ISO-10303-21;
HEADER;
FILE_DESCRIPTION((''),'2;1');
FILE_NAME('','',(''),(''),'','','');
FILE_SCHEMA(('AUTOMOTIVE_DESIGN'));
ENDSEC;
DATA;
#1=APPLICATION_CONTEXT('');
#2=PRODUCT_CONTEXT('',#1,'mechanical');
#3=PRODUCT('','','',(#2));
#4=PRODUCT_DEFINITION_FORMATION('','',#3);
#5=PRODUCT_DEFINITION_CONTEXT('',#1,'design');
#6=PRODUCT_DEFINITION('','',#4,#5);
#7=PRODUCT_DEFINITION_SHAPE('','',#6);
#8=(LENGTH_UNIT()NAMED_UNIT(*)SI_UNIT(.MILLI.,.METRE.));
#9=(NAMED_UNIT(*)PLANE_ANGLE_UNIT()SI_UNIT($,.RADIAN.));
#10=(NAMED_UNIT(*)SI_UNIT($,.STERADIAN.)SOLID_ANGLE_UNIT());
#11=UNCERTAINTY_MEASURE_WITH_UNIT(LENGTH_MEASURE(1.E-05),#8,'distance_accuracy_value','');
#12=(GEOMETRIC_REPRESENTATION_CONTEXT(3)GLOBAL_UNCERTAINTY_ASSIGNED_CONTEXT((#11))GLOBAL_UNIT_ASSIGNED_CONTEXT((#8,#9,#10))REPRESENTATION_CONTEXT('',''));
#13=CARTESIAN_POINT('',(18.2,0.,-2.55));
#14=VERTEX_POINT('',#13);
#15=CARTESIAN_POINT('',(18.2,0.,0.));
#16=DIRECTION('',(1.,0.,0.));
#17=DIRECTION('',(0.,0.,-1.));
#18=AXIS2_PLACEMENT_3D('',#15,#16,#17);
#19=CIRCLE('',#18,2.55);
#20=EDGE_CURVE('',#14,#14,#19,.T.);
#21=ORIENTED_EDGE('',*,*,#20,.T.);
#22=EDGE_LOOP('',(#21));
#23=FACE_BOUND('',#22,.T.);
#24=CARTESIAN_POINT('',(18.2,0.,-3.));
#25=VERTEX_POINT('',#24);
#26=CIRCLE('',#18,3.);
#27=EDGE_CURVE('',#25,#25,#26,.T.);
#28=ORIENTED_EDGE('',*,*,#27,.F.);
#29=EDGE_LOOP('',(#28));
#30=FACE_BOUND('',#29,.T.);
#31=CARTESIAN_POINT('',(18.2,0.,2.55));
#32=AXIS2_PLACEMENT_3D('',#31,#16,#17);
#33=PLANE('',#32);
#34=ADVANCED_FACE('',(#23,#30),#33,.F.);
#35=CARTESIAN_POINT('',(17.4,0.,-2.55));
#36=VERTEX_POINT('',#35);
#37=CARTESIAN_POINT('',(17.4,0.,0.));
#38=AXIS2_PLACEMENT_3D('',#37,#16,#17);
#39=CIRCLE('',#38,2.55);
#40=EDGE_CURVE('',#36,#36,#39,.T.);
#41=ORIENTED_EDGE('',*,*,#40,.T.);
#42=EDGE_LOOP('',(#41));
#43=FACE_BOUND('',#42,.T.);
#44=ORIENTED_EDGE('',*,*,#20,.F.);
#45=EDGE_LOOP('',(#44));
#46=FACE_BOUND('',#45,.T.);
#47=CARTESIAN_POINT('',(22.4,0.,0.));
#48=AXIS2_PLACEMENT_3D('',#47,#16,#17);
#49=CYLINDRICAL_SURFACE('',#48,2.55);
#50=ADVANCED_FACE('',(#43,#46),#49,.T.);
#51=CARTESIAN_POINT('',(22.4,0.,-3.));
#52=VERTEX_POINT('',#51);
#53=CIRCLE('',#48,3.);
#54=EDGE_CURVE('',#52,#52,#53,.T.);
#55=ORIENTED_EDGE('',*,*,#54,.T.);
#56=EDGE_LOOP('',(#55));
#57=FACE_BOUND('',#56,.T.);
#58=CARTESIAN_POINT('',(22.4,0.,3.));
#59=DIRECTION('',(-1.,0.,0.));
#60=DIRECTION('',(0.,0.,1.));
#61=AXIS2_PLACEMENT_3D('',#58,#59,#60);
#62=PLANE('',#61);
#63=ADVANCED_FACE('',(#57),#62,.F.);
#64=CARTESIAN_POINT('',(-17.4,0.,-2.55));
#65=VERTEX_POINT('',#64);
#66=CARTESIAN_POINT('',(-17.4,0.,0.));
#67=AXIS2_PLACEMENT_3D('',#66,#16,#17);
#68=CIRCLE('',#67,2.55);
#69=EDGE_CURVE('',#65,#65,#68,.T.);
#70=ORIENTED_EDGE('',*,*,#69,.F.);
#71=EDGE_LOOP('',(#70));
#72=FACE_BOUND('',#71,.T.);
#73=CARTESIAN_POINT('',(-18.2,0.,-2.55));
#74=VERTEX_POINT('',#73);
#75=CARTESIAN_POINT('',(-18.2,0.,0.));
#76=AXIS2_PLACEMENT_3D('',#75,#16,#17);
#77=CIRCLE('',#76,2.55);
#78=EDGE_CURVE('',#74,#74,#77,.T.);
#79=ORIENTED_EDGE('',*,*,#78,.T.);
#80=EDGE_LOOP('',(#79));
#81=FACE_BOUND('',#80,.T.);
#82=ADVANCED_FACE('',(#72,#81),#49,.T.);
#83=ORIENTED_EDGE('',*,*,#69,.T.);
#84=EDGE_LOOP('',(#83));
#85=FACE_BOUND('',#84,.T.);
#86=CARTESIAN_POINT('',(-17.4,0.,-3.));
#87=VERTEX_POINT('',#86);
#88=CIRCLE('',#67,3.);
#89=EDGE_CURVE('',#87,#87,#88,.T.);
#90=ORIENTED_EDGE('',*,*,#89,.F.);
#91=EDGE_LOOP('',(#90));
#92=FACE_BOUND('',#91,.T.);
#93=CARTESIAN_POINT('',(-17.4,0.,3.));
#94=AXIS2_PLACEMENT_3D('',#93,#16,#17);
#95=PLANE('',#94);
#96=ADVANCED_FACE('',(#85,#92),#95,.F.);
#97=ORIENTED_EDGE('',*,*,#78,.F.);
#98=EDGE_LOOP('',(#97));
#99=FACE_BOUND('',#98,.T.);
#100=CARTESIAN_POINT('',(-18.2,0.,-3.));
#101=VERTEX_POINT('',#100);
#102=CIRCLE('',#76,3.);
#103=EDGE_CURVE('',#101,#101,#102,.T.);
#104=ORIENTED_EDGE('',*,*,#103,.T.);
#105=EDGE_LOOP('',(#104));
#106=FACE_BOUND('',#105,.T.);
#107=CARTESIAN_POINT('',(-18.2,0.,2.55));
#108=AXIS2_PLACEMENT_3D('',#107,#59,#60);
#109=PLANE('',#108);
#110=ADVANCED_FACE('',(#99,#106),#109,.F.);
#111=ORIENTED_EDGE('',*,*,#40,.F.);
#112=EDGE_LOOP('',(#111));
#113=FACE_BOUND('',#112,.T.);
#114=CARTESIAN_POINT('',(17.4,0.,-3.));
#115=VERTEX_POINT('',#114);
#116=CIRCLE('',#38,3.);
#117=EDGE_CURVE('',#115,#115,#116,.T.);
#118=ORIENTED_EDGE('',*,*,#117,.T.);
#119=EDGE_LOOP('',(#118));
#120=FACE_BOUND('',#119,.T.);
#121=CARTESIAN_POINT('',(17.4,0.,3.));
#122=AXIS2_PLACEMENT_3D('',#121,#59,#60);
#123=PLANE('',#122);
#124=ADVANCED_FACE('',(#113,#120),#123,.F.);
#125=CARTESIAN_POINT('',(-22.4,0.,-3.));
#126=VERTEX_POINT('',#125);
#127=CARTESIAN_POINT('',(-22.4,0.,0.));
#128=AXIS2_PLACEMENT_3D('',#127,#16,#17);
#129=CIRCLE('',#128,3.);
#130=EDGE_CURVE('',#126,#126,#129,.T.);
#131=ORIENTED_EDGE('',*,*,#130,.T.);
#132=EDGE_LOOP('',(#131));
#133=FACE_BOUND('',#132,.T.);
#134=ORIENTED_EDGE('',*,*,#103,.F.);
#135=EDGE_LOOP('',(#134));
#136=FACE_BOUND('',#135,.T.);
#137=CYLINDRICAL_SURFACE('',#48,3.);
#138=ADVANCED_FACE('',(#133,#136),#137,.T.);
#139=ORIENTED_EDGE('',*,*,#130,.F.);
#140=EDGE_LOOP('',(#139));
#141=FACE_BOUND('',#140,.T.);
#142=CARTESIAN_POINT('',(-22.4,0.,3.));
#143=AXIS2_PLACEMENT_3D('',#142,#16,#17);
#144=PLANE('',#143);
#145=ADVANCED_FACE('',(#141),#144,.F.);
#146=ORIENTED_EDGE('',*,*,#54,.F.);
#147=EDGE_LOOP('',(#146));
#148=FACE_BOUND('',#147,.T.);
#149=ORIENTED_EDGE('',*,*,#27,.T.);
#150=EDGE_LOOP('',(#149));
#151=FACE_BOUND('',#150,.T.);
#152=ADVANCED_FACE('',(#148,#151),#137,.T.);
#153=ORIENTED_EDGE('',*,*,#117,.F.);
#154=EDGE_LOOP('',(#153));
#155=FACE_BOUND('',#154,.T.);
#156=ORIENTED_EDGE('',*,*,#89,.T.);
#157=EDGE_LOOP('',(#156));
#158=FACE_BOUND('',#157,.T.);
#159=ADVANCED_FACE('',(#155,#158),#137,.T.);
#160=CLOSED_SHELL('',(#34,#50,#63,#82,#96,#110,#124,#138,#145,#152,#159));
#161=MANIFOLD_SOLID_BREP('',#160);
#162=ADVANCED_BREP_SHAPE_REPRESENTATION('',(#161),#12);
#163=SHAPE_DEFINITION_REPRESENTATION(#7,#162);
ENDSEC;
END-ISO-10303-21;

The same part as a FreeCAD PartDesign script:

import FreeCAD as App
import Part
import Sketcher

V = App.Vector
Q = App.Units.Quantity


def add_polygon(sketch, points):
    """Adds a closed chain of lines whose ends are joined by coincident constraints."""
    first, n = sketch.GeometryCount, len(points)
    for a, b in zip(points, points[1:] + points[:1]):
        sketch.addGeometry(Part.LineSegment(App.Vector(*a, 0), App.Vector(*b, 0)), False)
    for i in range(n):
        sketch.addConstraint(Sketcher.Constraint("Coincident", first + i, 2, first + (i + 1) % n, 1))

doc = App.newDocument("Part")
body = doc.addObject("PartDesign::Body", "Body")

sketch1 = doc.addObject("Sketcher::SketchObject", "Sketch")
body.addObject(sketch1)
sketch1.AttachmentSupport = (doc.XZ_Plane, [""])
sketch1.MapMode = "FlatFace"
add_polygon(sketch1, [(-17.4, 3), (17.4, 3), (17.4, 2.55), (18.2, 2.55), (18.2, 3), (22.4, 3), (22.4, 0), (-22.4, 0), (-22.4, 3), (-18.2, 3), (-18.2, 2.55), (-17.4, 2.55)])
sketch1.addConstraint([
    Sketcher.Constraint("Horizontal", 0),
    Sketcher.Constraint("Vertical", 1),
    Sketcher.Constraint("Horizontal", 2),
    Sketcher.Constraint("Vertical", 3),
    Sketcher.Constraint("Horizontal", 4),
    Sketcher.Constraint("Vertical", 5),
    Sketcher.Constraint("Horizontal", 6),
    Sketcher.Constraint("Vertical", 7),
    Sketcher.Constraint("Horizontal", 8),
    Sketcher.Constraint("Vertical", 9),
    Sketcher.Constraint("Horizontal", 10),
    Sketcher.Constraint("Vertical", 11),
    Sketcher.Constraint("Symmetric", 5, 2, 6, 2, -1, 1),
    Sketcher.Constraint("Symmetric", 3, 2, 8, 2, -2),
    Sketcher.Constraint("Symmetric", 1, 2, 10, 2, -2),
    Sketcher.Constraint("Horizontal", 0, 2, 3, 2),
    Sketcher.Constraint("DistanceY", 5, 2, 5, 1, Q("3 mm")),
    Sketcher.Constraint("DistanceX", 0, 1, 0, 2, Q("34.8 mm")),
    Sketcher.Constraint("DistanceX", 2, 1, 2, 2, Q("0.8 mm")),
    Sketcher.Constraint("DistanceX", 4, 1, 4, 2, Q("4.2 mm")),
    Sketcher.Constraint("DistanceY", 1, 2, 1, 1, Q("0.45 mm")),
])
revolution = doc.addObject("PartDesign::Revolution", "Revolution")
body.addObject(revolution)
revolution.Profile = sketch1
revolution.ReferenceAxis = (sketch1, ["H_Axis"])
revolution.Angle = 360

doc.recompute()
